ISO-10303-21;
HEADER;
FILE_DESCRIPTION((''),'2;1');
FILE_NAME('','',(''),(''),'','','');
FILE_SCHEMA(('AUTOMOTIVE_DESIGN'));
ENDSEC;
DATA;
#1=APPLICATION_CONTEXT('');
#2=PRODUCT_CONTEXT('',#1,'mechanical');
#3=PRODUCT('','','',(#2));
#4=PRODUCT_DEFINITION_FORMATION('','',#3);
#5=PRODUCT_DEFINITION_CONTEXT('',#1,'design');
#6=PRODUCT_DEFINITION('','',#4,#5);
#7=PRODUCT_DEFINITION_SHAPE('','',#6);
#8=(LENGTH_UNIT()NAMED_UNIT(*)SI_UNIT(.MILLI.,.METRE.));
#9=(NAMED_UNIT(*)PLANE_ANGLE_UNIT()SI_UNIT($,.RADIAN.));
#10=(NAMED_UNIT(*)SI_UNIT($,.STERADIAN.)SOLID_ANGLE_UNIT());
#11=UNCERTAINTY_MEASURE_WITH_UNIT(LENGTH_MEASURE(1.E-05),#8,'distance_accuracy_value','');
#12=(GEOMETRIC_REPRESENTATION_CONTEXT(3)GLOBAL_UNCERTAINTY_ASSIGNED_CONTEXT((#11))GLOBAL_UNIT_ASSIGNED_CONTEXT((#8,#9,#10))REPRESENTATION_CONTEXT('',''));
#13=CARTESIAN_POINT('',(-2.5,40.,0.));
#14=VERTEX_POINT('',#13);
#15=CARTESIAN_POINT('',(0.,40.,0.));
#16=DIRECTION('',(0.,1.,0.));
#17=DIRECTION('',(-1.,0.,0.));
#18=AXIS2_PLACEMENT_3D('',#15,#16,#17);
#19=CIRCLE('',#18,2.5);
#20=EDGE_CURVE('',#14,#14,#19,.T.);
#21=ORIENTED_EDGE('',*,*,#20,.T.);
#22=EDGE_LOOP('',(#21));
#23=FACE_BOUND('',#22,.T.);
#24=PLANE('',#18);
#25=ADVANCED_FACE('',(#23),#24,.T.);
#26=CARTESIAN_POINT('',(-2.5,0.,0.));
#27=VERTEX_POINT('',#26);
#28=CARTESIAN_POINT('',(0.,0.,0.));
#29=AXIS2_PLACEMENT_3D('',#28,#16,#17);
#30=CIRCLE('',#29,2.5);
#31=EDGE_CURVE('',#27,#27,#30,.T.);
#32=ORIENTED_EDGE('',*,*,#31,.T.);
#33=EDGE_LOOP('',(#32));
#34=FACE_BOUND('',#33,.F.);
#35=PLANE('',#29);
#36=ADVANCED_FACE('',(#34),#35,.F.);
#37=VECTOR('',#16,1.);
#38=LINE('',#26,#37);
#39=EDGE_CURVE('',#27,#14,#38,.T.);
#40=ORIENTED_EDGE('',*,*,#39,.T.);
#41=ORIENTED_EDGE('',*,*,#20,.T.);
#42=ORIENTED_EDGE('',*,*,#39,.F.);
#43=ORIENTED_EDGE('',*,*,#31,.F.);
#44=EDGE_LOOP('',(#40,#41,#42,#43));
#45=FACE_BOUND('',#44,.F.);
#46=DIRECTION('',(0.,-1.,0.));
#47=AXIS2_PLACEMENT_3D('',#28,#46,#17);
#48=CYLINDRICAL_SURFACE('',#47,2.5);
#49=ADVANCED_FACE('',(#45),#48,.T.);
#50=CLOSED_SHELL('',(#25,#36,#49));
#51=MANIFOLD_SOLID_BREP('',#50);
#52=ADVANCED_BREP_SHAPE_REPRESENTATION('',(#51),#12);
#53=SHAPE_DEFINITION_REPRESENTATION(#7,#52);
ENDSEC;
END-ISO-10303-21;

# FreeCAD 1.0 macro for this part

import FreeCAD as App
import Part
import Sketcher
from FreeCAD import Vector

doc = App.newDocument("Part")
body = doc.addObject("PartDesign::Body", "Body")

sketch1 = body.newObject("Sketcher::SketchObject", "Sketch")
sketch1.AttachmentSupport = (doc.getObject("XZ_Plane"), [""])
sketch1.MapMode = "FlatFace"
sketch1.addGeometry(Part.Circle(Vector(0, 0, 0), Vector(0, 0, 1), 2.5), False)
sketch1.addConstraint([
    Sketcher.Constraint("Coincident", 0, 3, -1, 1),
    Sketcher.Constraint("Diameter", 0, 5.0),
])
pad1 = body.newObject("PartDesign::Pad", "Pad")
pad1.Profile = sketch1
pad1.Length = 40
pad1.Reversed = True

doc.recompute()
